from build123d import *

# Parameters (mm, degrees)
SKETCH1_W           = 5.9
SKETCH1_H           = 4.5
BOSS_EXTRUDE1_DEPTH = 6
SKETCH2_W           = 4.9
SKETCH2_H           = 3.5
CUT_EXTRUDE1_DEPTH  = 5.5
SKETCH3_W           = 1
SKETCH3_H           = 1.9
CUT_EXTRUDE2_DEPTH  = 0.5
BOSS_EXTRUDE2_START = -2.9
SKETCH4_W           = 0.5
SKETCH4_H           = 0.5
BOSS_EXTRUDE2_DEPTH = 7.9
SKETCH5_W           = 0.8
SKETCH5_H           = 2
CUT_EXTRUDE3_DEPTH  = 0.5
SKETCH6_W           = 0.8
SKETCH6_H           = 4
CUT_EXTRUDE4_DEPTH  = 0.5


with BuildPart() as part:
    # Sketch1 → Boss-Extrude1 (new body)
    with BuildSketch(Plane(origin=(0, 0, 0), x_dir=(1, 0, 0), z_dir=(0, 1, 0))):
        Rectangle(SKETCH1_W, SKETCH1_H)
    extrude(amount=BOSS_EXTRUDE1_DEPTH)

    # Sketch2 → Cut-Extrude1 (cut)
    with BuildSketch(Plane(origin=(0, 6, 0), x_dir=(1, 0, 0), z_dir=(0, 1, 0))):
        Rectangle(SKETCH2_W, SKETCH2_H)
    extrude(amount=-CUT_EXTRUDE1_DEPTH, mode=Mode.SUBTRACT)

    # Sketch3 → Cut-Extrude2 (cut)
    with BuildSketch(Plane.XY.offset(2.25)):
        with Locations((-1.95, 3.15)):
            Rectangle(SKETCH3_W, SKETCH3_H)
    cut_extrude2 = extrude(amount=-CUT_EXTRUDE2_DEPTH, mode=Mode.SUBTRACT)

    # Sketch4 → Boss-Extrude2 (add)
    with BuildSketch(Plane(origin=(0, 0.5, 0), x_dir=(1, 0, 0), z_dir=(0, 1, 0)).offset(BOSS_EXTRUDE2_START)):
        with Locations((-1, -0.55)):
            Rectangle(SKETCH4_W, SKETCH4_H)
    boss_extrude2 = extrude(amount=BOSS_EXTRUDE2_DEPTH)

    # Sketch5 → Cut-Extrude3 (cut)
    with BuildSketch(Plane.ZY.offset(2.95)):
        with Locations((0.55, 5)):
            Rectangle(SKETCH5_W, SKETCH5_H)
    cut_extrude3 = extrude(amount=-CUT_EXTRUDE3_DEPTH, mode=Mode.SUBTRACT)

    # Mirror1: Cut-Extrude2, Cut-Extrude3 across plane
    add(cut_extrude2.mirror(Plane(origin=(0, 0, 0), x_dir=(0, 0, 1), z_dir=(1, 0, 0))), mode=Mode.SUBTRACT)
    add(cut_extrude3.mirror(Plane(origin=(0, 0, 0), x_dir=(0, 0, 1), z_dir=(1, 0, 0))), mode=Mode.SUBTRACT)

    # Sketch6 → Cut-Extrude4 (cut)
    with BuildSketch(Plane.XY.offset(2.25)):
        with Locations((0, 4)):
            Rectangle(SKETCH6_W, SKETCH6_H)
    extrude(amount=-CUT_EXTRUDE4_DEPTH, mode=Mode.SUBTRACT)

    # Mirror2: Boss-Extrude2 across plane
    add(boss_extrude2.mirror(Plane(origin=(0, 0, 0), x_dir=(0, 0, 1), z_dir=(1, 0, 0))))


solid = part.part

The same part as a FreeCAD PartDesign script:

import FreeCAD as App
import Part
import Sketcher
from FreeCAD import Vector


def add_polygon(sketch, points):
    """Adds a closed chain of lines whose ends are joined by coincident constraints."""
    first, n = sketch.GeometryCount, len(points)
    for a, b in zip(points, points[1:] + points[:1]):
        sketch.addGeometry(Part.LineSegment(App.Vector(*a, 0), App.Vector(*b, 0)), False)
    for i in range(n):
        sketch.addConstraint(Sketcher.Constraint("Coincident", first + i, 2, first + (i + 1) % n, 1))

doc = App.newDocument("Part")
params = doc.addObject("Spreadsheet::Sheet", "Params")
for row, (alias, value) in enumerate([
    ("sketch1_width", "5.9 mm"),
    ("sketch1_height", "4.5 mm"),
    ("pad1_length", "6 mm"),
    ("sketch2_width", "4.9 mm"),
    ("sketch2_height", "3.5 mm"),
    ("pocket1_length", "5.5 mm"),
    ("sketch3_width", "1 mm"),
    ("sketch3_height", "1.9 mm"),
    ("pocket2_length", "0.5 mm"),
    ("sketch4_width", "0.5 mm"),
    ("pad2_length", "7.9 mm"),
    ("sketch5_width", "2 mm"),
    ("sketch5_height", "0.8 mm"),
    ("pocket3_length", "0.5 mm"),
    ("sketch6_height", "4 mm"),
    ("sketch6_width", "0.8 mm"),
    ("pocket4_length", "0.5 mm"),
], start=1):
    params.set(f"A{row}", alias)
    params.set(f"B{row}", "=" + value)
    params.setAlias(f"B{row}", alias)

body = doc.addObject("PartDesign::Body", "Body")

sketch1 = body.newObject("Sketcher::SketchObject", "Sketch")
sketch1.AttachmentSupport = (doc.getObject("XZ_Plane"), [""])
sketch1.MapMode = "FlatFace"
add_polygon(sketch1, [(-3, -2.2), (-3, 2.2), (3, 2.2), (3, -2.2)])
sketch1.addConstraint([
    Sketcher.Constraint("Vertical", 0),
    Sketcher.Constraint("Horizontal", 1),
    Sketcher.Constraint("Vertical", 2),
    Sketcher.Constraint("Horizontal", 3),
    Sketcher.Constraint("Symmetric", 0, 2, 2, 2, -1, 1),
    Sketcher.Constraint("DistanceX", 1, 1, 1, 2, 5.9),
    Sketcher.Constraint("DistanceY", 0, 1, 0, 2, 4.5),
])
sketch1.setExpression("Constraints[9]", "Params.sketch1_width")
sketch1.setExpression("Constraints[10]", "Params.sketch1_height")
pad1 = body.newObject("PartDesign::Pad", "Pad")
pad1.Profile = sketch1
pad1.setExpression("Length", "Params.pad1_length")
pad1.Reversed = True

sketch2 = body.newObject("Sketcher::SketchObject", "Sketch001")
sketch2.AttachmentSupport = (doc.getObject("XZ_Plane"), [""])
sketch2.MapMode = "FlatFace"
sketch2.AttachmentOffset = App.Placement(Vector(0, 0, -6), App.Rotation())
add_polygon(sketch2, [(-2.5, -1.8), (-2.5, 1.8), (2.5, 1.8), (2.5, -1.8)])
sketch2.addConstraint([
    Sketcher.Constraint("Vertical", 0),
    Sketcher.Constraint("Horizontal", 1),
    Sketcher.Constraint("Vertical", 2),
    Sketcher.Constraint("Horizontal", 3),
    Sketcher.Constraint("Symmetric", 0, 2, 2, 2, -1, 1),
    Sketcher.Constraint("DistanceX", 1, 1, 1, 2, 4.9),
    Sketcher.Constraint("DistanceY", 0, 1, 0, 2, 3.5),
])
sketch2.setExpression("Constraints[9]", "Params.sketch2_width")
sketch2.setExpression("Constraints[10]", "Params.sketch2_height")
pocket1 = body.newObject("PartDesign::Pocket", "Pocket")
pocket1.Profile = sketch2
pocket1.setExpression("Length", "Params.pocket1_length")
pocket1.Reversed = True

sketch3 = body.newObject("Sketcher::SketchObject", "Sketch002")
sketch3.AttachmentSupport = (doc.getObject("XY_Plane"), [""])
sketch3.MapMode = "FlatFace"
sketch3.AttachmentOffset = App.Placement(Vector(0, 0, 2.25), App.Rotation())
add_polygon(sketch3, [(-2.5, 4.1), (-2.5, 2.2), (-1.4, 2.2), (-1.4, 4.1)])
sketch3.addConstraint([
    Sketcher.Constraint("Vertical", 0),
    Sketcher.Constraint("Horizontal", 1),
    Sketcher.Constraint("Vertical", 2),
    Sketcher.Constraint("Horizontal", 3),
    Sketcher.Constraint("DistanceX", 1, 1, 1, 2, 1.0),
    Sketcher.Constraint("DistanceY", 0, 2, 0, 1, 1.9),
    Sketcher.Constraint("DistanceY", -1, 1, 0, 2, 2.2),
    Sketcher.Constraint("DistanceX", 0, 2, -1, 1, 2.45),
])
sketch3.setExpression("Constraints[8]", "Params.sketch3_width")
sketch3.setExpression("Constraints[9]", "Params.sketch3_height")
pocket2 = body.newObject("PartDesign::Pocket", "Pocket001")
pocket2.Profile = sketch3
pocket2.setExpression("Length", "Params.pocket2_length")

sketch4 = body.newObject("Sketcher::SketchObject", "Sketch003")
sketch4.AttachmentSupport = (doc.getObject("XZ_Plane"), [""])
sketch4.MapMode = "FlatFace"
sketch4.AttachmentOffset = App.Placement(Vector(0, 0, 2.4), App.Rotation())
add_polygon(sketch4, [(-1.2, 0.3), (-1.2, 0.8), (-0.8, 0.8), (-0.8, 0.3)])
sketch4.addConstraint([
    Sketcher.Constraint("Vertical", 0),
    Sketcher.Constraint("Horizontal", 1),
    Sketcher.Constraint("Vertical", 2),
    Sketcher.Constraint("Horizontal", 3),
    Sketcher.Constraint("Equal", 3, 0),
    Sketcher.Constraint("DistanceX", 1, 1, 1, 2, 0.5),
    Sketcher.Constraint("DistanceY", -1, 1, 0, 2, 0.8),
    Sketcher.Constraint("DistanceX", 0, 2, -1, 1, 1.25),
])
sketch4.setExpression("Constraints[9]", "Params.sketch4_width")
pad2 = body.newObject("PartDesign::Pad", "Pad001")
pad2.Profile = sketch4
pad2.setExpression("Length", "Params.pad2_length")
pad2.Reversed = True

sketch5 = body.newObject("Sketcher::SketchObject", "Sketch004")
sketch5.AttachmentSupport = (doc.getObject("YZ_Plane"), [""])
sketch5.MapMode = "FlatFace"
sketch5.AttachmentOffset = App.Placement(Vector(0, 0, -2.95), App.Rotation())
add_polygon(sketch5, [(6, 0.1), (4, 0.1), (4, 0.9), (6, 0.9)])
sketch5.addConstraint([
    Sketcher.Constraint("Horizontal", 0),
    Sketcher.Constraint("Vertical", 1),
    Sketcher.Constraint("Horizontal", 2),
    Sketcher.Constraint("Vertical", 3),
    Sketcher.Constraint("DistanceX", 0, 2, 0, 1, 2.0),
    Sketcher.Constraint("DistanceY", 1, 1, 1, 2, 0.8),
    Sketcher.Constraint("DistanceX", -1, 1, 0, 2, 4.0),
    Sketcher.Constraint("DistanceY", -1, 1, 0, 2, 0.15),
])
sketch5.setExpression("Constraints[8]", "Params.sketch5_width")
sketch5.setExpression("Constraints[9]", "Params.sketch5_height")
pocket3 = body.newObject("PartDesign::Pocket", "Pocket002")
pocket3.Profile = sketch5
pocket3.setExpression("Length", "Params.pocket3_length")
pocket3.Reversed = True
doc.recompute()

mirrored = body.newObject("PartDesign::Mirrored", "Mirrored")
mirrored.Originals = [pocket2, pocket3]
mirrored.MirrorPlane = (doc.getObject("YZ_Plane"), [""])
body.Tip = mirrored

sketch6 = body.newObject("Sketcher::SketchObject", "Sketch005")
sketch6.AttachmentSupport = (doc.getObject("XY_Plane"), [""])
sketch6.MapMode = "FlatFace"
sketch6.AttachmentOffset = App.Placement(Vector(0, 0, 2.25), App.Rotation())
add_polygon(sketch6, [(-0.4, 6), (-0.4, 2), (0.4, 2), (0.4, 6)])
sketch6.addConstraint([
    Sketcher.Constraint("Vertical", 0),
    Sketcher.Constraint("Horizontal", 1),
    Sketcher.Constraint("Vertical", 2),
    Sketcher.Constraint("Horizontal", 3),
    Sketcher.Constraint("DistanceY", 0, 2, 0, 1, 4.0),
    Sketcher.Constraint("DistanceX", 1, 1, 1, 2, 0.8),
    Sketcher.Constraint("DistanceY", -1, 1, 0, 2, 2.0),
    Sketcher.Constraint("DistanceX", 0, 2, -1, 1, 0.4),
])
sketch6.setExpression("Constraints[8]", "Params.sketch6_height")
sketch6.setExpression("Constraints[9]", "Params.sketch6_width")
pocket4 = body.newObject("PartDesign::Pocket", "Pocket003")
pocket4.Profile = sketch6
pocket4.setExpression("Length", "Params.pocket4_length")
doc.recompute()

mirrored2 = body.newObject("PartDesign::Mirrored", "Mirrored001")
mirrored2.Originals = [pad2]
mirrored2.MirrorPlane = (doc.getObject("YZ_Plane"), [""])
body.Tip = mirrored2

doc.recompute()
